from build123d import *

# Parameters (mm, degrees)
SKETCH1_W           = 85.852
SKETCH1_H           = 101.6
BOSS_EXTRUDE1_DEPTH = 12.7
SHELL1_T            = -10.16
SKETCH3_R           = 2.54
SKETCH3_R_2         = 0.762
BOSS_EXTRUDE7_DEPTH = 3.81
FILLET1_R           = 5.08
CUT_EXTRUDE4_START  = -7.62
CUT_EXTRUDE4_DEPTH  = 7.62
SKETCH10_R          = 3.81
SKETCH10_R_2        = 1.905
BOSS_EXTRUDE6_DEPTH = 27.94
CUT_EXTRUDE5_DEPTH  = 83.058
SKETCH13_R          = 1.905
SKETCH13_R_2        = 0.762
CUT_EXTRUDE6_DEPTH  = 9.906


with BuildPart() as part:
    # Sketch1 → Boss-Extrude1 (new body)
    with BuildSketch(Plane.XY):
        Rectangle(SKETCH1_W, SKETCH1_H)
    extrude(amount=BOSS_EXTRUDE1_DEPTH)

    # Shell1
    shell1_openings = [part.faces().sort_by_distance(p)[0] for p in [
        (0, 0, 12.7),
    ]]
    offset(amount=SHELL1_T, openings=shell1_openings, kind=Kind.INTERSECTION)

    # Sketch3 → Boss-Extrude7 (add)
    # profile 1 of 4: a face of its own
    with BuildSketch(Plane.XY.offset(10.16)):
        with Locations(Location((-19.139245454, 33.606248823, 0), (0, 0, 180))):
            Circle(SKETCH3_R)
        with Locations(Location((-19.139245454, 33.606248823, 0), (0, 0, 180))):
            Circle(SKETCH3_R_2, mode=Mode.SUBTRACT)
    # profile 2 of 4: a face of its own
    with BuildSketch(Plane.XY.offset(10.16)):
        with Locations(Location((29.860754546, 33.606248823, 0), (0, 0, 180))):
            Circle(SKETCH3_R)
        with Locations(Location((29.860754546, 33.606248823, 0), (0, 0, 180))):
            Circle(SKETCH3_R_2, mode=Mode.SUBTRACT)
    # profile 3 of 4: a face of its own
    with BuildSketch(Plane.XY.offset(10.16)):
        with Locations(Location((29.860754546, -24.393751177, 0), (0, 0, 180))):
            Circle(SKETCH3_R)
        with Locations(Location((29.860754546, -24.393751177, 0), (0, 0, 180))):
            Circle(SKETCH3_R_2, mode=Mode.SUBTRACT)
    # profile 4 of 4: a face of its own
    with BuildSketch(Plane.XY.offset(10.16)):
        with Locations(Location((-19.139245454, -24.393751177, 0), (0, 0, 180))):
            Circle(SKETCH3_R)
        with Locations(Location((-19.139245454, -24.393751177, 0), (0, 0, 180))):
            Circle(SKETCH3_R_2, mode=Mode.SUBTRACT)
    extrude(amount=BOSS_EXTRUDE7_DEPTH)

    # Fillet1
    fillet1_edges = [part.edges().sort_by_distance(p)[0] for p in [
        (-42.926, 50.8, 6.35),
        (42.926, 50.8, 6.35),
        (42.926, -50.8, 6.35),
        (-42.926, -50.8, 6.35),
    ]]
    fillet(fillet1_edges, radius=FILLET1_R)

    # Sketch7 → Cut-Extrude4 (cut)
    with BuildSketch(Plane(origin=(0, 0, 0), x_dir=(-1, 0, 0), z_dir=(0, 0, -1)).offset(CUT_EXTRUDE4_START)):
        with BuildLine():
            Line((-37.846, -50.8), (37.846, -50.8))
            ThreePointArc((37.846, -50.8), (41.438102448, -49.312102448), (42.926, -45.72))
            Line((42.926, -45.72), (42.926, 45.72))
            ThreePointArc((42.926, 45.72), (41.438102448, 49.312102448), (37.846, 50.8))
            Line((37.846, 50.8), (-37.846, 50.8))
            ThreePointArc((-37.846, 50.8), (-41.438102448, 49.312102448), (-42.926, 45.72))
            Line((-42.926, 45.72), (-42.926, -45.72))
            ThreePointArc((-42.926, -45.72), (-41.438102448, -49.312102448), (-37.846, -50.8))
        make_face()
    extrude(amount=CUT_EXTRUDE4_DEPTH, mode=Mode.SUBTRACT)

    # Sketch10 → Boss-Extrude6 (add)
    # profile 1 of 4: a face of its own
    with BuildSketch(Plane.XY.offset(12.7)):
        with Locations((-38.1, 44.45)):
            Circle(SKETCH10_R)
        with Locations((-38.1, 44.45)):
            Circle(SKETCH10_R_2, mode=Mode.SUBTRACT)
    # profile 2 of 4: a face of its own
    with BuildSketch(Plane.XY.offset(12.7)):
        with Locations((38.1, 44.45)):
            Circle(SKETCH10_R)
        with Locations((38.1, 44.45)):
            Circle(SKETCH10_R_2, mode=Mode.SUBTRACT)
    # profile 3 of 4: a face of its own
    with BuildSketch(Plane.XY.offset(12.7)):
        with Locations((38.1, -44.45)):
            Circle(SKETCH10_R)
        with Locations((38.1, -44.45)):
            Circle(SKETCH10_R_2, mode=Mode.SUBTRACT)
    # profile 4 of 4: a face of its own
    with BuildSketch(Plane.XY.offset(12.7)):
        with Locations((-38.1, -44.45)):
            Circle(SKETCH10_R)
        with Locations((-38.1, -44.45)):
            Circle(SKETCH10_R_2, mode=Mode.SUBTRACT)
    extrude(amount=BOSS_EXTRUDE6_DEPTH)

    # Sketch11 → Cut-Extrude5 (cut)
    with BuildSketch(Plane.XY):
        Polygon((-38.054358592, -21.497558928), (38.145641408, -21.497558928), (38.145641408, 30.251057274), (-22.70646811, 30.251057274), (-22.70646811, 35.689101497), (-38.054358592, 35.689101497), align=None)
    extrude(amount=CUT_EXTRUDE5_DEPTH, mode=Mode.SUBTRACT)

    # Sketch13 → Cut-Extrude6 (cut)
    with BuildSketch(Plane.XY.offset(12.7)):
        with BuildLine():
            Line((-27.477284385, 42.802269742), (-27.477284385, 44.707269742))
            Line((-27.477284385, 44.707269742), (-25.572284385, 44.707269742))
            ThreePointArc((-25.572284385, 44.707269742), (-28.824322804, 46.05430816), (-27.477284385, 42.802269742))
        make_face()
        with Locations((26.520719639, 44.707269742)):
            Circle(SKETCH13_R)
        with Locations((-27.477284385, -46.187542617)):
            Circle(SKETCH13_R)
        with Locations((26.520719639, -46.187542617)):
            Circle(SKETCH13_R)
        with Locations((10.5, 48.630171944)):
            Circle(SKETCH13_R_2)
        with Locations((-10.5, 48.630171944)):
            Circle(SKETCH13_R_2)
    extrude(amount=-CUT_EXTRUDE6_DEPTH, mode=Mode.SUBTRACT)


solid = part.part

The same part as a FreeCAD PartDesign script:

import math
import FreeCAD as App
import Part
import Sketcher

V = App.Vector
Q = App.Units.Quantity


def edges_at(feature, points):
    """Names of the edges that pass closest to the given points."""
    edges = feature.Shape.Edges
    near = lambda p: min(range(len(edges)), key=lambda i: edges[i].distToShape(Part.Vertex(*p))[0])
    return sorted({f"Edge{near(p) + 1}" for p in points})


def faces_at(feature, points):
    """Names of the faces that lie closest to the given points."""
    faces = feature.Shape.Faces
    near = lambda p: min(range(len(faces)), key=lambda i: faces[i].distToShape(Part.Vertex(*p))[0])
    return sorted({f"Face{near(p) + 1}" for p in points})

doc = App.newDocument("Part")
body = doc.addObject("PartDesign::Body", "Body")

sketch1 = body.newObject("Sketcher::SketchObject", "Sketch")
sketch1.AttachmentSupport = (doc.getObject("XY_Plane"), [""])
sketch1.MapMode = "FlatFace"
sketch1.addGeometry([
    Part.LineSegment(V(-43, 51, 0), V(-43, -51, 0)),
    Part.LineSegment(V(-43, -51, 0), V(43, -51, 0)),
    Part.LineSegment(V(43, -51, 0), V(43, 51, 0)),
    Part.LineSegment(V(43, 51, 0), V(-43, 51, 0)),
], False)
sketch1.addConstraint([
    Sketcher.Constraint("Coincident", 0, 2, 1, 1),
    Sketcher.Constraint("Coincident", 1, 2, 2, 1),
    Sketcher.Constraint("Coincident", 2, 2, 3, 1),
    Sketcher.Constraint("Coincident", 3, 2, 0, 1),
    Sketcher.Constraint("Vertical", 0),
    Sketcher.Constraint("Horizontal", 1),
    Sketcher.Constraint("Vertical", 2),
    Sketcher.Constraint("Horizontal", 3),
    Sketcher.Constraint("Symmetric", 0, 2, 2, 2, -1, 1),
    Sketcher.Constraint("DistanceY", 0, 2, 0, 1, Q("4 in")),
    Sketcher.Constraint("DistanceX", 1, 1, 1, 2, Q("3.38 in")),
])
pad1 = body.newObject("PartDesign::Pad", "Pad")
pad1.Profile = sketch1
pad1.Length = Q("0.5 in")
doc.recompute()

thickness = body.newObject("PartDesign::Thickness", "Thickness")
thickness.Base = (pad1, faces_at(pad1, [(0, 0, 12.7)]))
thickness.Value = Q("0.4 in")
thickness.Reversed = True
thickness.Join = "Intersection"

sketch2 = body.newObject("Sketcher::SketchObject", "Sketch001")
sketch2.AttachmentSupport = (doc.getObject("XY_Plane"), [""])
sketch2.MapMode = "FlatFace"
sketch2.AttachmentOffset = App.Placement(V(0, 0, 0.4 * 25.4), App.Rotation())
sketch2.addGeometry([
    Part.Circle(V(-19.1, 33.6, 0), V(0, 0, 1), 2.5),
    Part.Circle(V(-19.1, 33.6, 0), V(0, 0, 1), 0.8),
    Part.Circle(V(29.9, 33.6, 0), V(0, 0, 1), 2.5),
    Part.Circle(V(29.9, 33.6, 0), V(0, 0, 1), 0.8),
    Part.Circle(V(29.9, -24.4, 0), V(0, 0, 1), 2.5),
    Part.Circle(V(29.9, -24.4, 0), V(0, 0, 1), 0.8),
    Part.Circle(V(-19.1, -24.4, 0), V(0, 0, 1), 2.5),
    Part.Circle(V(-19.1, -24.4, 0), V(0, 0, 1), 0.8),
], False)
sketch2.addConstraint([
    Sketcher.Constraint("Coincident", 1, 3, 0, 3),
    Sketcher.Constraint("Coincident", 3, 3, 2, 3),
    Sketcher.Constraint("Coincident", 5, 3, 4, 3),
    Sketcher.Constraint("Coincident", 7, 3, 6, 3),
    Sketcher.Constraint("Equal", 0, 2),
    Sketcher.Constraint("Equal", 1, 3),
    Sketcher.Constraint("Equal", 2, 4),
    Sketcher.Constraint("Equal", 3, 5),
    Sketcher.Constraint("Equal", 4, 6),
    Sketcher.Constraint("Equal", 5, 7),
    Sketcher.Constraint("Horizontal", 1, 3, 2, 3),
    Sketcher.Constraint("Horizontal", 5, 3, 6, 3),
    Sketcher.Constraint("Vertical", 3, 3, 4, 3),
    Sketcher.Constraint("Vertical", 1, 3, 6, 3),
    Sketcher.Constraint("Diameter", 0, Q("0.2 in")),
    Sketcher.Constraint("Diameter", 1, Q("0.06 in")),
    Sketcher.Constraint("DistanceX", 0, 3, 2, 3, Q("49 mm")),
    Sketcher.Constraint("DistanceY", 4, 3, 2, 3, Q("58 mm")),
    Sketcher.Constraint("DistanceY", -1, 1, 0, 3, Q("33.606249 mm")),
    Sketcher.Constraint("DistanceX", 0, 3, -1, 1, Q("19.139245 mm")),
])
pad2 = body.newObject("PartDesign::Pad", "Pad001")
pad2.Profile = sketch2
pad2.Length = Q("0.15 in")
doc.recompute()

fillet = body.newObject("PartDesign::Fillet", "Fillet")
fillet.Base = (pad2, edges_at(pad2, [
    (-42.926, 50.8, 6.35),
    (42.926, 50.8, 6.35),
    (42.926, -50.8, 6.35),
    (-42.926, -50.8, 6.35),
]))
fillet.Radius = Q("0.2 in")

sketch3 = body.newObject("Sketcher::SketchObject", "Sketch002")
sketch3.AttachmentSupport = (doc.getObject("XY_Plane"), [""])
sketch3.MapMode = "FlatFace"
sketch3.AttachmentOffset = App.Placement(V(0, 0, 0.3 * 25.4), App.Rotation())
sketch3.addGeometry([
    Part.LineSegment(V(38, -51, 0), V(-38, -51, 0)),
    Part.ArcOfCircle(Part.Circle(V(-38, -46, 0), V(0, 0, 1), 5), math.radians(-180), math.radians(-90)),
    Part.LineSegment(V(-43, -46, 0), V(-43, 46, 0)),
    Part.ArcOfCircle(Part.Circle(V(-38, 46, 0), V(0, 0, 1), 5), math.radians(90), math.radians(180)),
    Part.LineSegment(V(-38, 51, 0), V(38, 51, 0)),
    Part.ArcOfCircle(Part.Circle(V(38, 46, 0), V(0, 0, 1), 5), math.radians(0), math.radians(90)),
    Part.LineSegment(V(43, 46, 0), V(43, -46, 0)),
    Part.ArcOfCircle(Part.Circle(V(38, -46, 0), V(0, 0, 1), 5), math.radians(-90), math.radians(0)),
], False)
sketch3.addConstraint([
    Sketcher.Constraint("Tangent", 0, 2, 1, 2),
    Sketcher.Constraint("Tangent", 1, 1, 2, 1),
    Sketcher.Constraint("Tangent", 2, 2, 3, 2),
    Sketcher.Constraint("Tangent", 3, 1, 4, 1),
    Sketcher.Constraint("Tangent", 4, 2, 5, 2),
    Sketcher.Constraint("Tangent", 5, 1, 6, 1),
    Sketcher.Constraint("Tangent", 6, 2, 7, 2),
    Sketcher.Constraint("Tangent", 7, 1, 0, 1),
    Sketcher.Constraint("Horizontal", 0),
    Sketcher.Constraint("Vertical", 2),
    Sketcher.Constraint("Horizontal", 4),
    Sketcher.Constraint("Vertical", 6),
    Sketcher.Constraint("Equal", 1, 3),
    Sketcher.Constraint("Equal", 3, 5),
    Sketcher.Constraint("Equal", 5, 7),
    Sketcher.Constraint("Symmetric", 1, 3, 5, 3, -1, 1),
    Sketcher.Constraint("Radius", 1, Q("0.2 in")),
    Sketcher.Constraint("DistanceY", 2, 1, 2, 2, Q("3.6 in")),
    Sketcher.Constraint("DistanceX", 0, 2, 0, 1, Q("2.98 in")),
])
pocket1 = body.newObject("PartDesign::Pocket", "Pocket")
pocket1.Profile = sketch3
pocket1.Length = Q("0.3 in")

sketch4 = body.newObject("Sketcher::SketchObject", "Sketch003")
sketch4.AttachmentSupport = (doc.getObject("XY_Plane"), [""])
sketch4.MapMode = "FlatFace"
sketch4.AttachmentOffset = App.Placement(V(0, 0, 0.5 * 25.4), App.Rotation())
sketch4.addGeometry([
    Part.Circle(V(-38.1, 44.5, 0), V(0, 0, 1), 3.8),
    Part.Circle(V(-38.1, 44.5, 0), V(0, 0, 1), 1.9),
    Part.Circle(V(38.1, 44.5, 0), V(0, 0, 1), 3.8),
    Part.Circle(V(38.1, 44.5, 0), V(0, 0, 1), 1.9),
    Part.Circle(V(38.1, -44.5, 0), V(0, 0, 1), 3.8),
    Part.Circle(V(38.1, -44.5, 0), V(0, 0, 1), 1.9),
    Part.Circle(V(-38.1, -44.5, 0), V(0, 0, 1), 3.8),
    Part.Circle(V(-38.1, -44.5, 0), V(0, 0, 1), 1.9),
], False)
sketch4.addConstraint([
    Sketcher.Constraint("Coincident", 1, 3, 0, 3),
    Sketcher.Constraint("Coincident", 3, 3, 2, 3),
    Sketcher.Constraint("Coincident", 5, 3, 4, 3),
    Sketcher.Constraint("Coincident", 7, 3, 6, 3),
    Sketcher.Constraint("Equal", 0, 2),
    Sketcher.Constraint("Equal", 1, 3),
    Sketcher.Constraint("Equal", 2, 4),
    Sketcher.Constraint("Equal", 3, 5),
    Sketcher.Constraint("Equal", 4, 6),
    Sketcher.Constraint("Equal", 5, 7),
    Sketcher.Constraint("Symmetric", 0, 3, 4, 3, -1, 1),
    Sketcher.Constraint("Symmetric", 2, 3, 6, 3, -1, 1),
    Sketcher.Constraint("Symmetric", 0, 3, 2, 3, -2),
    Sketcher.Constraint("Diameter", 0, Q("0.3 in")),
    Sketcher.Constraint("Diameter", 1, Q("0.15 in")),
    Sketcher.Constraint("DistanceX", 0, 3, 2, 3, Q("3 in")),
    Sketcher.Constraint("DistanceY", 4, 3, 2, 3, Q("3.5 in")),
])
pad3 = body.newObject("PartDesign::Pad", "Pad002")
pad3.Profile = sketch4
pad3.Length = Q("1.1 in")

sketch5 = body.newObject("Sketcher::SketchObject", "Sketch004")
sketch5.AttachmentSupport = (doc.getObject("XY_Plane"), [""])
sketch5.MapMode = "FlatFace"
sketch5.addGeometry([
    Part.LineSegment(V(-38, -21, 0), V(38, -21, 0)),
    Part.LineSegment(V(38, -21, 0), V(38, 30, 0)),
    Part.LineSegment(V(38, 30, 0), V(-23, 30, 0)),
    Part.LineSegment(V(-23, 30, 0), V(-23, 36, 0)),
    Part.LineSegment(V(-23, 36, 0), V(-38, 36, 0)),
    Part.LineSegment(V(-38, 36, 0), V(-38, -21, 0)),
], False)
sketch5.addConstraint([
    Sketcher.Constraint("Coincident", 0, 2, 1, 1),
    Sketcher.Constraint("Coincident", 1, 2, 2, 1),
    Sketcher.Constraint("Coincident", 2, 2, 3, 1),
    Sketcher.Constraint("Coincident", 3, 2, 4, 1),
    Sketcher.Constraint("Coincident", 4, 2, 5, 1),
    Sketcher.Constraint("Coincident", 5, 2, 0, 1),
    Sketcher.Constraint("Horizontal", 0),
    Sketcher.Constraint("Vertical", 1),
    Sketcher.Constraint("Horizontal", 2),
    Sketcher.Constraint("Vertical", 3),
    Sketcher.Constraint("Horizontal", 4),
    Sketcher.Constraint("Vertical", 5),
    Sketcher.Constraint("DistanceX", 0, 1, 0, 2, Q("3 in")),
    Sketcher.Constraint("DistanceX", 2, 2, 2, 1, Q("60.85211 mm")),
    Sketcher.Constraint("DistanceY", 5, 2, 5, 1, Q("57.18666 mm")),
    Sketcher.Constraint("DistanceY", -1, 1, 3, 2, Q("35.689101 mm")),
    Sketcher.Constraint("DistanceY", 1, 1, 1, 2, Q("51.748616 mm")),
    Sketcher.Constraint("DistanceX", -1, 1, 0, 2, Q("38.145641 mm")),
])
pocket2 = body.newObject("PartDesign::Pocket", "Pocket001")
pocket2.Profile = sketch5
pocket2.Length = Q("3.27 in")
pocket2.Reversed = True

sketch6 = body.newObject("Sketcher::SketchObject", "Sketch005")
sketch6.AttachmentSupport = (doc.getObject("XY_Plane"), [""])
sketch6.MapMode = "FlatFace"
sketch6.AttachmentOffset = App.Placement(V(0, 0, 0.5 * 25.4), App.Rotation())
sketch6.addGeometry([
    Part.LineSegment(V(-27.5, 42.8, 0), V(-27.5, 44.7, 0)),
    Part.LineSegment(V(-27.5, 44.7, 0), V(-25.6, 44.7, 0)),
    Part.ArcOfCircle(Part.Circle(V(-27.5, 44.7, 0), V(0, 0, 1), 1.9), math.radians(0), math.radians(270)),
    Part.Circle(V(26.5, 44.7, 0), V(0, 0, 1), 1.9),
    Part.Circle(V(-27.5, -46.2, 0), V(0, 0, 1), 1.9),
    Part.Circle(V(26.5, -46.2, 0), V(0, 0, 1), 1.9),
    Part.Circle(V(10.5, 48.6, 0), V(0, 0, 1), 0.8),
    Part.Circle(V(-10.5, 48.6, 0), V(0, 0, 1), 0.8),
], False)
sketch6.addConstraint([
    Sketcher.Constraint("Coincident", 0, 2, 1, 1),
    Sketcher.Constraint("Coincident", 1, 2, 2, 1),
    Sketcher.Constraint("Coincident", 2, 2, 0, 1),
    Sketcher.Constraint("Vertical", 0),
    Sketcher.Constraint("Horizontal", 1),
    Sketcher.Constraint("Coincident", 0, 2, 2, 3),
    Sketcher.Constraint("Equal", 2, 3),
    Sketcher.Constraint("Equal", 3, 4),
    Sketcher.Constraint("Equal", 4, 5),
    Sketcher.Constraint("Equal", 6, 7),
    Sketcher.Constraint("Symmetric", 6, 3, 7, 3, -2),
    Sketcher.Constraint("Horizontal", 2, 3, 3, 3),
    Sketcher.Constraint("Horizontal", 4, 3, 5, 3),
    Sketcher.Constraint("Vertical", 2, 3, 4, 3),
    Sketcher.Constraint("Vertical", 3, 3, 5, 3),
    Sketcher.Constraint("Diameter", 3, Q("0.15 in")),
    Sketcher.Constraint("Diameter", 6, Q("0.06 in")),
    Sketcher.Constraint("DistanceX", -1, 1, 6, 3, Q("10.5 mm")),
    Sketcher.Constraint("DistanceY", -1, 1, 2, 3, Q("44.70727 mm")),
    Sketcher.Constraint("DistanceX", -1, 1, 3, 3, Q("26.52072 mm")),
    Sketcher.Constraint("DistanceY", -1, 1, 6, 3, Q("48.630172 mm")),
    Sketcher.Constraint("DistanceX", 2, 3, -1, 1, Q("27.477284 mm")),
    Sketcher.Constraint("DistanceY", 4, 3, -1, 1, Q("46.187543 mm")),
])
pocket3 = body.newObject("PartDesign::Pocket", "Pocket002")
pocket3.Profile = sketch6
pocket3.Length = Q("0.39 in")

doc.recompute()
